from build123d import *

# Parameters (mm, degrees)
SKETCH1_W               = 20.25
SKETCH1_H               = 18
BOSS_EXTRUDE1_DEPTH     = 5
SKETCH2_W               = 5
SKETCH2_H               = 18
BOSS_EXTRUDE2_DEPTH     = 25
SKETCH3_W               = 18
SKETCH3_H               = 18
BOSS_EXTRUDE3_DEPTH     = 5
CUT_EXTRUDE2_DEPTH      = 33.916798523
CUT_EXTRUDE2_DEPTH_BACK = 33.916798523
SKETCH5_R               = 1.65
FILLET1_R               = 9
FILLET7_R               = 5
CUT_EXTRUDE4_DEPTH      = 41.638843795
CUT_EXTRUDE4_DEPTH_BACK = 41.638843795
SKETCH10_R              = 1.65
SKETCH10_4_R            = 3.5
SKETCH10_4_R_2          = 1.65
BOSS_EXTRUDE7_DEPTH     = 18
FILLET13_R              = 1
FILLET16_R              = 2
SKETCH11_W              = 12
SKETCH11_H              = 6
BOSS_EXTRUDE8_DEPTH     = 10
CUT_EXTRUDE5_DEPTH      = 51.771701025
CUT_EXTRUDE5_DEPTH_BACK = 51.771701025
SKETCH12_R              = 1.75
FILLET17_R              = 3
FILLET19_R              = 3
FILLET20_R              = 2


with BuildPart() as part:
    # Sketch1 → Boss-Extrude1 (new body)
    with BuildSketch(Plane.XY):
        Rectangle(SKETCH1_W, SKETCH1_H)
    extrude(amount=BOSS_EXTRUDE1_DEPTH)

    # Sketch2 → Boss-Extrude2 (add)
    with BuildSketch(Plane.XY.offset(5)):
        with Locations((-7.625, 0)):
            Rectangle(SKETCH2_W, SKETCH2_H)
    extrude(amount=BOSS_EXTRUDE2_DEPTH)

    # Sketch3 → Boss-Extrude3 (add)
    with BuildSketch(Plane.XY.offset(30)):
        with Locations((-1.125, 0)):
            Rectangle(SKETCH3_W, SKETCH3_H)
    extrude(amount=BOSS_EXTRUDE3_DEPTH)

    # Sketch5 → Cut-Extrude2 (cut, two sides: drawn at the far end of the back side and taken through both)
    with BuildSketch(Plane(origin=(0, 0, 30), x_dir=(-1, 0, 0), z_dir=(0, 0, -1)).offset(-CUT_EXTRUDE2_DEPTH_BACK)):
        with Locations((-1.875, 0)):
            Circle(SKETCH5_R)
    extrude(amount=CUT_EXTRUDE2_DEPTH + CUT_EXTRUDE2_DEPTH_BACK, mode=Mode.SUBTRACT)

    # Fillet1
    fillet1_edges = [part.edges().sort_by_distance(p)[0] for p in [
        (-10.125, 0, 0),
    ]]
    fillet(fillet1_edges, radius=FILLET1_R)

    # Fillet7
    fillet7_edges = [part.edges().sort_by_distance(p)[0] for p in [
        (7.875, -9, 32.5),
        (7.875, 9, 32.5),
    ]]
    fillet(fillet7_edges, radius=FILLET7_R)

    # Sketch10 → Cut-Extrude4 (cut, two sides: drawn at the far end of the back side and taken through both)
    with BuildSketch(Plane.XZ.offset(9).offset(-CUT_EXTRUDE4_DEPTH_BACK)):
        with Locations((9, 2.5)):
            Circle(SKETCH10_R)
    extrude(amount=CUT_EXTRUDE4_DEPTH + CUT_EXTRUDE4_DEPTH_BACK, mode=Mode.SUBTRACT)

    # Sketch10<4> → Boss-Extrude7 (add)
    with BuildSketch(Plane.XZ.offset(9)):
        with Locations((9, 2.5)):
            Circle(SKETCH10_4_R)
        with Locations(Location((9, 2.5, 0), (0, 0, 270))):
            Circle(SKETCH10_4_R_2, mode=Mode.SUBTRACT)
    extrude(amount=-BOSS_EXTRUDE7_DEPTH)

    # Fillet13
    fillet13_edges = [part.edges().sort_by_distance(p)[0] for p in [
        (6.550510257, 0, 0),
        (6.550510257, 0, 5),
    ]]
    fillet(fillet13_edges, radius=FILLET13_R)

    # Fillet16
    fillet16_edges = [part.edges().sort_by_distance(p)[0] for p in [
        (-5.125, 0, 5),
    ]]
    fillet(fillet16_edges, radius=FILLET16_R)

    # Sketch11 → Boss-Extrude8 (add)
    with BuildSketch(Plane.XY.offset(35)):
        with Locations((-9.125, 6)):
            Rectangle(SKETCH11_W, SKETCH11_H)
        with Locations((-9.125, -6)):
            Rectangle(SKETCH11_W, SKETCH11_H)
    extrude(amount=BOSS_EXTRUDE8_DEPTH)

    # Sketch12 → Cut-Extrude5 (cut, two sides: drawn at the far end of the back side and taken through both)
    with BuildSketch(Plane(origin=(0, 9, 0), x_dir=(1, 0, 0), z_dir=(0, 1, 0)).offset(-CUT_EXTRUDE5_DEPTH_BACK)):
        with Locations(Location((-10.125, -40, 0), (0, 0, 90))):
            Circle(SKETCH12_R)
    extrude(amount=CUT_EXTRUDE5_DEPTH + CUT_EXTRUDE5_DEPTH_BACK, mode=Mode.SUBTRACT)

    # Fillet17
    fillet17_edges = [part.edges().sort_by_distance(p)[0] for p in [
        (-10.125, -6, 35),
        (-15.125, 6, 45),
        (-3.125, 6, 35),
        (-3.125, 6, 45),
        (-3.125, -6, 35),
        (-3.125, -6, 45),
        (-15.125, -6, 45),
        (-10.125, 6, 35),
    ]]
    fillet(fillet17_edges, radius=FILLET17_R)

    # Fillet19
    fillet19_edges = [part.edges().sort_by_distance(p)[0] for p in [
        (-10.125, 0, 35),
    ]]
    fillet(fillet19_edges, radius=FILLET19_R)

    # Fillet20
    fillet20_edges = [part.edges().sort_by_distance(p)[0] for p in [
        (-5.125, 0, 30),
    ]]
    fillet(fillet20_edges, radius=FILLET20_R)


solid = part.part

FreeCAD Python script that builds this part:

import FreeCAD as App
import Part
import Sketcher


def edges_at(feature, points):
    """Names of the edges that pass closest to the given points."""
    edges = feature.Shape.Edges
    near = lambda p: min(range(len(edges)), key=lambda i: edges[i].distToShape(Part.Vertex(*p))[0])
    return sorted({f"Edge{near(p) + 1}" for p in points})


def add_polygon(sketch, points):
    """Adds a closed chain of lines whose ends are joined by coincident constraints."""
    first, n = sketch.GeometryCount, len(points)
    for a, b in zip(points, points[1:] + points[:1]):
        sketch.addGeometry(Part.LineSegment(App.Vector(*a, 0), App.Vector(*b, 0)), False)
    for i in range(n):
        sketch.addConstraint(Sketcher.Constraint("Coincident", first + i, 2, first + (i + 1) % n, 1))

doc = App.newDocument("Part")
body = doc.addObject("PartDesign::Body", "Body")

sketch1 = body.newObject("Sketcher::SketchObject", "Sketch")
sketch1.AttachmentSupport = (doc.getObject("XY_Plane"), [""])
sketch1.MapMode = "FlatFace"
add_polygon(sketch1, [(-10, 9), (-10, -9), (10, -9), (10, 9)])
sketch1.addConstraint([
    Sketcher.Constraint("Vertical", 0),
    Sketcher.Constraint("Horizontal", 1),
    Sketcher.Constraint("Vertical", 2),
    Sketcher.Constraint("Horizontal", 3),
    Sketcher.Constraint("Symmetric", 0, 2, 2, 2, -1, 1),
    Sketcher.Constraint("DistanceY", 0, 2, 0, 1, 18.0),
    Sketcher.Constraint("DistanceX", 1, 1, 1, 2, 20.25),
])
pad1 = body.newObject("PartDesign::Pad", "Pad")
pad1.Profile = sketch1
pad1.Length = 5

sketch2 = body.newObject("Sketcher::SketchObject", "Sketch001")
sketch2.AttachmentSupport = (doc.getObject("XY_Plane"), [""])
sketch2.MapMode = "FlatFace"
sketch2.AttachmentOffset = App.Placement(App.Vector(0, 0, 5), App.Rotation())
add_polygon(sketch2, [(-10, 9), (-10, -9), (-5, -9), (-5, 9)])
sketch2.addConstraint([
    Sketcher.Constraint("Vertical", 0),
    Sketcher.Constraint("Horizontal", 1),
    Sketcher.Constraint("Vertical", 2),
    Sketcher.Constraint("Horizontal", 3),
    Sketcher.Constraint("DistanceX", 1, 1, 1, 2, 5.0),
    Sketcher.Constraint("DistanceY", 0, 2, 0, 1, 18.0),
    Sketcher.Constraint("DistanceY", 0, 2, -1, 1, 9.0),
    Sketcher.Constraint("DistanceX", 0, 2, -1, 1, 10.125),
])
pad2 = body.newObject("PartDesign::Pad", "Pad001")
pad2.Profile = sketch2
pad2.Length = 25

sketch3 = body.newObject("Sketcher::SketchObject", "Sketch002")
sketch3.AttachmentSupport = (doc.getObject("XY_Plane"), [""])
sketch3.MapMode = "FlatFace"
sketch3.AttachmentOffset = App.Placement(App.Vector(0, 0, 30), App.Rotation())
add_polygon(sketch3, [(-10, 9), (-10, -9), (8, -9), (8, 9)])
sketch3.addConstraint([
    Sketcher.Constraint("Vertical", 0),
    Sketcher.Constraint("Horizontal", 1),
    Sketcher.Constraint("Vertical", 2),
    Sketcher.Constraint("Horizontal", 3),
    Sketcher.Constraint("Equal", 3, 0),
    Sketcher.Constraint("DistanceX", 1, 1, 1, 2, 18.0),
    Sketcher.Constraint("DistanceY", 0, 2, -1, 1, 9.0),
    Sketcher.Constraint("DistanceX", 0, 2, -1, 1, 10.125),
])
pad3 = body.newObject("PartDesign::Pad", "Pad002")
pad3.Profile = sketch3
pad3.Length = 5

sketch4 = body.newObject("Sketcher::SketchObject", "Sketch003")
sketch4.AttachmentSupport = (doc.getObject("XY_Plane"), [""])
sketch4.MapMode = "FlatFace"
sketch4.AttachmentOffset = App.Placement(App.Vector(0, 0, 30), App.Rotation())
sketch4.addGeometry(Part.Circle(App.Vector(1.9, 0, 0), App.Vector(0, 0, 1), 1.6), False)
sketch4.addConstraint([
    Sketcher.Constraint("PointOnObject", 0, 3, -1),
    Sketcher.Constraint("Diameter", 0, 3.3),
    Sketcher.Constraint("DistanceX", -1, 1, 0, 3, 1.875),
])
pocket1 = body.newObject("PartDesign::Pocket", "Pocket")
pocket1.Profile = sketch4
pocket1.Type = "ThroughAll"
pocket1.Midplane = True
doc.recompute()

fillet = body.newObject("PartDesign::Fillet", "Fillet")
fillet.Base = (pocket1, edges_at(pocket1, [(-10.125, 0, 0)]))
fillet.Radius = 9
doc.recompute()

fillet2 = body.newObject("PartDesign::Fillet", "Fillet001")
fillet2.Base = (fillet, edges_at(fillet, [(7.875, -9, 32.5), (7.875, 9, 32.5)]))
fillet2.Radius = 5

sketch5 = body.newObject("Sketcher::SketchObject", "Sketch004")
sketch5.AttachmentSupport = (doc.getObject("XZ_Plane"), [""])
sketch5.MapMode = "FlatFace"
sketch5.AttachmentOffset = App.Placement(App.Vector(0, 0, 9), App.Rotation())
sketch5.addGeometry(Part.Circle(App.Vector(9, 2.5, 0), App.Vector(0, 0, 1), 1.6), False)
sketch5.addConstraint([
    Sketcher.Constraint("Diameter", 0, 3.3),
    Sketcher.Constraint("DistanceX", -1, 1, 0, 3, 9.0),
    Sketcher.Constraint("DistanceY", -1, 1, 0, 3, 2.5),
])
pocket2 = body.newObject("PartDesign::Pocket", "Pocket001")
pocket2.Profile = sketch5
pocket2.Type = "ThroughAll"
pocket2.Midplane = True

sketch6 = body.newObject("Sketcher::SketchObject", "Sketch005")
sketch6.AttachmentSupport = (doc.getObject("XZ_Plane"), [""])
sketch6.MapMode = "FlatFace"
sketch6.AttachmentOffset = App.Placement(App.Vector(0, 0, 9), App.Rotation())
sketch6.addGeometry([
    Part.Circle(App.Vector(9, 2.5, 0), App.Vector(0, 0, 1), 3.5),
    Part.Circle(App.Vector(9, 2.5, 0), App.Vector(0, 0, 1), 1.6),
], False)
sketch6.addConstraint([
    Sketcher.Constraint("Coincident", 1, 3, 0, 3),
    Sketcher.Constraint("Diameter", 0, 7.0),
    Sketcher.Constraint("Diameter", 1, 3.3),
    Sketcher.Constraint("DistanceX", -1, 1, 0, 3, 9.0),
    Sketcher.Constraint("DistanceY", -1, 1, 0, 3, 2.5),
])
pad4 = body.newObject("PartDesign::Pad", "Pad003")
pad4.Profile = sketch6
pad4.Length = 18
pad4.Reversed = True
doc.recompute()

fillet3 = body.newObject("PartDesign::Fillet", "Fillet002")
fillet3.Base = (pad4, edges_at(pad4, [(6.551, 0, 0), (6.551, 0, 5)]))
fillet3.Radius = 1
doc.recompute()

fillet4 = body.newObject("PartDesign::Fillet", "Fillet003")
fillet4.Base = (fillet3, edges_at(fillet3, [(-5.125, 0, 5)]))
fillet4.Radius = 2

sketch7 = body.newObject("Sketcher::SketchObject", "Sketch006")
sketch7.AttachmentSupport = (doc.getObject("XY_Plane"), [""])
sketch7.MapMode = "FlatFace"
sketch7.AttachmentOffset = App.Placement(App.Vector(0, 0, 35), App.Rotation())
add_polygon(sketch7, [(-15, 9), (-15, 3), (-3, 3), (-3, 9)])
add_polygon(sketch7, [(-15, -3), (-15, -9), (-3, -9), (-3, -3)])
sketch7.addConstraint([
    Sketcher.Constraint("Vertical", 0),
    Sketcher.Constraint("Horizontal", 1),
    Sketcher.Constraint("Vertical", 2),
    Sketcher.Constraint("Horizontal", 3),
    Sketcher.Constraint("Vertical", 4),
    Sketcher.Constraint("Horizontal", 5),
    Sketcher.Constraint("Vertical", 6),
    Sketcher.Constraint("Horizontal", 7),
    Sketcher.Constraint("Symmetric", 3, 2, 4, 2, -1),
    Sketcher.Constraint("Symmetric", 1, 2, 6, 2, -1),
    Sketcher.Constraint("DistanceX", 1, 1, 1, 2, 12.0),
    Sketcher.Constraint("DistanceY", 0, 2, 0, 1, 6.0),
    Sketcher.Constraint("DistanceY", -1, 1, 0, 2, 3.0),
    Sketcher.Constraint("DistanceX", 0, 2, -1, 1, 15.125),
])
pad5 = body.newObject("PartDesign::Pad", "Pad004")
pad5.Profile = sketch7
pad5.Length = 10

sketch8 = body.newObject("Sketcher::SketchObject", "Sketch007")
sketch8.AttachmentSupport = (doc.getObject("XZ_Plane"), [""])
sketch8.MapMode = "FlatFace"
sketch8.AttachmentOffset = App.Placement(App.Vector(0, 0, -9), App.Rotation())
sketch8.addGeometry(Part.Circle(App.Vector(-10.1, 40, 0), App.Vector(0, 0, 1), 1.8), False)
sketch8.addConstraint([
    Sketcher.Constraint("Diameter", 0, 3.5),
    Sketcher.Constraint("DistanceY", -1, 1, 0, 3, 40.0),
    Sketcher.Constraint("DistanceX", 0, 3, -1, 1, 10.125),
])
pocket3 = body.newObject("PartDesign::Pocket", "Pocket002")
pocket3.Profile = sketch8
pocket3.Type = "ThroughAll"
pocket3.Midplane = True
doc.recompute()

fillet5 = body.newObject("PartDesign::Fillet", "Fillet004")
fillet5.Base = (pocket3, edges_at(pocket3, [
    (-10.125, -6, 35),
    (-15.125, 6, 45),
    (-3.125, 6, 35),
    (-3.125, 6, 45),
    (-3.125, -6, 35),
    (-3.125, -6, 45),
    (-15.125, -6, 45),
    (-10.125, 6, 35),
]))
fillet5.Radius = 3
doc.recompute()

fillet6 = body.newObject("PartDesign::Fillet", "Fillet005")
fillet6.Base = (fillet5, edges_at(fillet5, [(-10.125, 0, 35)]))
fillet6.Radius = 3
doc.recompute()

fillet7 = body.newObject("PartDesign::Fillet", "Fillet006")
fillet7.Base = (fillet6, edges_at(fillet6, [(-5.125, 0, 30)]))
fillet7.Radius = 2

doc.recompute()
